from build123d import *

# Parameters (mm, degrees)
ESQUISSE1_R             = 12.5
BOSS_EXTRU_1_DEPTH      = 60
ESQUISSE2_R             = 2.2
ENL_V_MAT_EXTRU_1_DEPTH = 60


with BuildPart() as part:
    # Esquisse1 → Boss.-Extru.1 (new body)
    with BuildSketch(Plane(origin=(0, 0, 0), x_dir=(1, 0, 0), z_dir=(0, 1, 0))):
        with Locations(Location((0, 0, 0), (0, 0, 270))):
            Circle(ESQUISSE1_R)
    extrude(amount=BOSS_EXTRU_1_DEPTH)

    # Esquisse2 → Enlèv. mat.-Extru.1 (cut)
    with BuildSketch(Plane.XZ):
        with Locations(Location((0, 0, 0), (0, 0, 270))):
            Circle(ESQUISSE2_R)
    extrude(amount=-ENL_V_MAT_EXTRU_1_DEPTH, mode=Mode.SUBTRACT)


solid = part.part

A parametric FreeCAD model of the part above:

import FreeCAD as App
import Part
import Sketcher

doc = App.newDocument("Part")
body = doc.addObject("PartDesign::Body", "Body")

# Sketch on XZ plane
sketch1 = doc.addObject("Sketcher::SketchObject", "Sketch")
body.addObject(sketch1)
sketch1.AttachmentSupport = (doc.XZ_Plane, [""])
sketch1.MapMode = "FlatFace"
sketch1.addGeometry(Part.Circle(App.Vector(0, 0, 0), App.Vector(0, 0, 1), 12), False)
sketch1.addConstraint(Sketcher.Constraint("Coincident", 0, 3, -1, 1))
sketch1.addConstraint(Sketcher.Constraint("Diameter", 0, 25.0))
pad1 = doc.addObject("PartDesign::Pad", "Pad")
body.addObject(pad1)
pad1.Profile = sketch1
pad1.Length = 60
pad1.Reversed = True

# Sketch on XZ plane
sketch2 = doc.addObject("Sketcher::SketchObject", "Sketch001")
body.addObject(sketch2)
sketch2.AttachmentSupport = (doc.XZ_Plane, [""])
sketch2.MapMode = "FlatFace"
sketch2.addGeometry(Part.Circle(App.Vector(0, 0, 0), App.Vector(0, 0, 1), 2.2), False)
sketch2.addConstraint(Sketcher.Constraint("Coincident", 0, 3, -1, 1))
sketch2.addConstraint(Sketcher.Constraint("Diameter", 0, 4.4))
pocket1 = doc.addObject("PartDesign::Pocket", "Pocket")
body.addObject(pocket1)
pocket1.Profile = sketch2
pocket1.Length = 60

doc.recompute()
